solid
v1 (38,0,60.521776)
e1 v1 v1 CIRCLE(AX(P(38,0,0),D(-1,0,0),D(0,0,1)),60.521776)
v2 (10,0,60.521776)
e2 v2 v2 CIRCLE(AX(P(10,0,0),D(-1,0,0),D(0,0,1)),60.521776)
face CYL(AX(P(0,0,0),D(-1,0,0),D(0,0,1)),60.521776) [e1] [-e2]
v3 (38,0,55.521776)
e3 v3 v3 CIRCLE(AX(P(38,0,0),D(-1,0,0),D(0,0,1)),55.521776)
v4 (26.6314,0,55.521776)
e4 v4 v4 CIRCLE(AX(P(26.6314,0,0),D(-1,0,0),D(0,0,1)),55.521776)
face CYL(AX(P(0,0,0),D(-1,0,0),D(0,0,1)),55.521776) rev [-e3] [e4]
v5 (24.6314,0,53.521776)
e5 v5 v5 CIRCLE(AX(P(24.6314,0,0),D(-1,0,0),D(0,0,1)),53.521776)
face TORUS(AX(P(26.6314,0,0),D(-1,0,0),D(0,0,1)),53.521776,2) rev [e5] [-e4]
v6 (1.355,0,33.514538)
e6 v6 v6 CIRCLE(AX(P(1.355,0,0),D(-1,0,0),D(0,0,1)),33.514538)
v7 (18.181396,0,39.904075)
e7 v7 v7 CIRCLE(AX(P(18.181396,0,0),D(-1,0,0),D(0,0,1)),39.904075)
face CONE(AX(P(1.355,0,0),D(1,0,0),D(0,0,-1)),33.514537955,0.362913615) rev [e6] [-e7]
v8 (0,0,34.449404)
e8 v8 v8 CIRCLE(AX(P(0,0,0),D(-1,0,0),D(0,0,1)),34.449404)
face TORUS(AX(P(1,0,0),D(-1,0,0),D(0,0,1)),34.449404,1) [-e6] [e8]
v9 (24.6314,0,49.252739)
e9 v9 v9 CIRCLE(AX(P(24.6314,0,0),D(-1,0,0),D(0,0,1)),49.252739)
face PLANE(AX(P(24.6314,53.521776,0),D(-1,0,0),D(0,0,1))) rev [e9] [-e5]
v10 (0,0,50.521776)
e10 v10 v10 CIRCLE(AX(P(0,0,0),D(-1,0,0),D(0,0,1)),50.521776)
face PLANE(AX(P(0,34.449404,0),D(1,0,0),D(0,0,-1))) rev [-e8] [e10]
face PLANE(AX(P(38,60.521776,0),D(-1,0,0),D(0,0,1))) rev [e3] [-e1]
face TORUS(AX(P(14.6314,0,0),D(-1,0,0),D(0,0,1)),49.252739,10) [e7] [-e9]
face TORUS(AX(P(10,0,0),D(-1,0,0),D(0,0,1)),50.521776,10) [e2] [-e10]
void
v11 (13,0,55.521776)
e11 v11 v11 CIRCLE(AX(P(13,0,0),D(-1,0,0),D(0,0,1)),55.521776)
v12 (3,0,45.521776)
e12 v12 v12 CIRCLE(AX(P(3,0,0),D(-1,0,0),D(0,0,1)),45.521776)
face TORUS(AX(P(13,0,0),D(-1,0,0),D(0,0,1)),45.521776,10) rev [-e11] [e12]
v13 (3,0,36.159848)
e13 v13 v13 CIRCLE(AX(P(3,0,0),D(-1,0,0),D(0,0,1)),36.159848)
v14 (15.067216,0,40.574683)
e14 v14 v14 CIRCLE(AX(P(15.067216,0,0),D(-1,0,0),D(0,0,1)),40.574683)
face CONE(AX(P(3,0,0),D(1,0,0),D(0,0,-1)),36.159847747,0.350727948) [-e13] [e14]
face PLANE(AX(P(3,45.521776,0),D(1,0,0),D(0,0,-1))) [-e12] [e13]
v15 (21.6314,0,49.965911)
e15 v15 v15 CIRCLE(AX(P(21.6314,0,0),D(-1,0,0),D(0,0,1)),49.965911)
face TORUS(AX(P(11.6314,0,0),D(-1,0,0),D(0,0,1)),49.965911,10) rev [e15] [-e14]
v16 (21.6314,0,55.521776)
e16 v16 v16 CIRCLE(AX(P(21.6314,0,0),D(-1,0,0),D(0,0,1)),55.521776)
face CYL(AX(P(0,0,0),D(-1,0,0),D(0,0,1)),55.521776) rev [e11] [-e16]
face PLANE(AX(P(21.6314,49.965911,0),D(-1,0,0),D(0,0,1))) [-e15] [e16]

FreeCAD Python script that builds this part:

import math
import FreeCAD as App
import Part
import Sketcher
Q = App.Units.Quantity

doc = App.newDocument("Part")
params = doc.addObject("Spreadsheet::Sheet", "Params")
for row, (alias, value) in enumerate([
    ("sketch1_radius", "1 mm"),
    ("sketch1_radius2", "10 mm"),
    ("sketch1_radius3", "2 mm"),
    ("sketch1_width", "28 mm"),
    ("sketch1_height", "5 mm"),
    ("revolution_angle", "360 deg"),
], start=1):
    params.set(f"A{row}", alias)
    params.set(f"B{row}", "=" + value)
    params.setAlias(f"B{row}", alias)

body = doc.addObject("PartDesign::Body", "Body")

# Sketch on XY plane
sketch1 = body.newObject("Sketcher::SketchObject", "Sketch")
sketch1.AttachmentSupport = (doc.getObject("XY_Plane"), [""])
sketch1.MapMode = "FlatFace"
sketch1.addGeometry(Part.LineSegment(App.Vector(0, 50.521776, 0), App.Vector(0, 34.449404, 0)), False)
sketch1.addGeometry(Part.ArcOfCircle(Part.Circle(App.Vector(1, 34.449404, 0), App.Vector(0, 0, 1), 1), math.radians(180), math.radians(290.793418)), False)
sketch1.addGeometry(Part.LineSegment(App.Vector(1.355, 33.514538, 0), App.Vector(18.181396, 39.904075, 0)), False)
sketch1.addGeometry(Part.ArcOfCircle(Part.Circle(App.Vector(14.6314, 49.252739, 0), App.Vector(0, 0, 1), 10), math.radians(-69.206582), math.radians(0)), False)
sketch1.addGeometry(Part.LineSegment(App.Vector(24.6314, 49.252739, 0), App.Vector(24.6314, 53.521776, 0)), False)
sketch1.addGeometry(Part.ArcOfCircle(Part.Circle(App.Vector(26.6314, 53.521776, 0), App.Vector(0, 0, 1), 2), math.radians(90), math.radians(180)), False)
sketch1.addGeometry(Part.LineSegment(App.Vector(26.6314, 55.521776, 0), App.Vector(38, 55.521776, 0)), False)
sketch1.addGeometry(Part.LineSegment(App.Vector(38, 55.521776, 0), App.Vector(38, 60.521776, 0)), False)
sketch1.addGeometry(Part.LineSegment(App.Vector(38, 60.521776, 0), App.Vector(10, 60.521776, 0)), False)
sketch1.addGeometry(Part.ArcOfCircle(Part.Circle(App.Vector(10, 50.521776, 0), App.Vector(0, 0, 1), 10), math.radians(90), math.radians(180)), False)
sketch1.addGeometry(Part.LineSegment(App.Vector(21.6314, 55.521776, 0), App.Vector(21.6314, 49.965911, 0)), False)
sketch1.addGeometry(Part.ArcOfCircle(Part.Circle(App.Vector(11.6314, 49.965911, 0), App.Vector(0, 0, 1), 10), math.radians(-69.904769), math.radians(0)), False)
sketch1.addGeometry(Part.LineSegment(App.Vector(15.067216, 40.574683, 0), App.Vector(3, 36.159848, 0)), False)
sketch1.addGeometry(Part.LineSegment(App.Vector(3, 36.159848, 0), App.Vector(3, 45.521776, 0)), False)
sketch1.addGeometry(Part.ArcOfCircle(Part.Circle(App.Vector(13, 45.521776, 0), App.Vector(0, 0, 1), 10), math.radians(90), math.radians(180)), False)
sketch1.addGeometry(Part.LineSegment(App.Vector(13, 55.521776, 0), App.Vector(21.6314, 55.521776, 0)), False)
sketch1.addConstraint(Sketcher.Constraint("Tangent", 0, 2, 1, 1))
sketch1.addConstraint(Sketcher.Constraint("Tangent", 1, 2, 2, 1))
sketch1.addConstraint(Sketcher.Constraint("Tangent", 2, 2, 3, 1))
sketch1.addConstraint(Sketcher.Constraint("Tangent", 3, 2, 4, 1))
sketch1.addConstraint(Sketcher.Constraint("Tangent", 4, 2, 5, 2))
sketch1.addConstraint(Sketcher.Constraint("Tangent", 5, 1, 6, 1))
sketch1.addConstraint(Sketcher.Constraint("Coincident", 6, 2, 7, 1))
sketch1.addConstraint(Sketcher.Constraint("Coincident", 7, 2, 8, 1))
sketch1.addConstraint(Sketcher.Constraint("Tangent", 8, 2, 9, 1))
sketch1.addConstraint(Sketcher.Constraint("Tangent", 9, 2, 0, 1))
sketch1.addConstraint(Sketcher.Constraint("Tangent", 10, 2, 11, 2))
sketch1.addConstraint(Sketcher.Constraint("Tangent", 11, 1, 12, 1))
sketch1.addConstraint(Sketcher.Constraint("Coincident", 12, 2, 13, 1))
sketch1.addConstraint(Sketcher.Constraint("Tangent", 13, 2, 14, 2))
sketch1.addConstraint(Sketcher.Constraint("Tangent", 14, 1, 15, 1))
sketch1.addConstraint(Sketcher.Constraint("Coincident", 15, 2, 10, 1))
sketch1.addConstraint(Sketcher.Constraint("Vertical", 0))
sketch1.addConstraint(Sketcher.Constraint("Vertical", 4))
sketch1.addConstraint(Sketcher.Constraint("Horizontal", 6))
sketch1.addConstraint(Sketcher.Constraint("Vertical", 7))
sketch1.addConstraint(Sketcher.Constraint("Horizontal", 8))
sketch1.addConstraint(Sketcher.Constraint("Vertical", 10))
sketch1.addConstraint(Sketcher.Constraint("Vertical", 13))
sketch1.addConstraint(Sketcher.Constraint("Horizontal", 15))
sketch1.addConstraint(Sketcher.Constraint("Equal", 3, 9))
sketch1.addConstraint(Sketcher.Constraint("Equal", 9, 11))
sketch1.addConstraint(Sketcher.Constraint("Equal", 11, 14))
sketch1.addConstraint(Sketcher.Constraint("PointOnObject", 0, 2, -2))
sketch1.addConstraint(Sketcher.Constraint("Horizontal", 6, 2, 14, 1))
sketch1.addConstraint(Sketcher.Constraint("Radius", 1, Q("1 mm")))
sketch1.addConstraint(Sketcher.Constraint("Radius", 3, Q("10 mm")))
sketch1.addConstraint(Sketcher.Constraint("Radius", 5, Q("2 mm")))
sketch1.addConstraint(Sketcher.Constraint("DistanceX", 8, 2, 8, 1, Q("28 mm")))
sketch1.addConstraint(Sketcher.Constraint("DistanceY", 7, 1, 7, 2, Q("5 mm")))
sketch1.addConstraint(Sketcher.Constraint("DistanceX", -1, 1, 14, 3, Q("13 mm")))
sketch1.addConstraint(Sketcher.Constraint("DistanceX", 11, 3, 3, 3, Q("3 mm")))
sketch1.addConstraint(Sketcher.Constraint("DistanceX", 6, 1, 6, 2, Q("11.3686 mm")))
sketch1.addConstraint(Sketcher.Constraint("DistanceX", -1, 1, 1, 2, Q("1.355 mm")))
sketch1.addConstraint(Sketcher.Constraint("DistanceY", 0, 2, 0, 1, Q("16.072371 mm")))
sketch1.addConstraint(Sketcher.Constraint("DistanceY", 13, 1, 13, 2, Q("9.361928 mm")))
sketch1.addConstraint(Sketcher.Constraint("DistanceY", 10, 2, 10, 1, Q("5.555864 mm")))
sketch1.addConstraint(Sketcher.Constraint("DistanceY", -1, 1, 3, 3, Q("49.252739 mm")))
sketch1.setExpression("Constraints[29]", "Params.sketch1_radius")
sketch1.setExpression("Constraints[30]", "Params.sketch1_radius2")
sketch1.setExpression("Constraints[31]", "Params.sketch1_radius3")
sketch1.setExpression("Constraints[32]", "Params.sketch1_width")
sketch1.setExpression("Constraints[33]", "Params.sketch1_height")
revolution = body.newObject("PartDesign::Revolution", "Revolution")
revolution.Profile = sketch1
revolution.ReferenceAxis = (sketch1, ["H_Axis"])
revolution.setExpression("Angle", "Params.revolution_angle")

doc.recompute()
